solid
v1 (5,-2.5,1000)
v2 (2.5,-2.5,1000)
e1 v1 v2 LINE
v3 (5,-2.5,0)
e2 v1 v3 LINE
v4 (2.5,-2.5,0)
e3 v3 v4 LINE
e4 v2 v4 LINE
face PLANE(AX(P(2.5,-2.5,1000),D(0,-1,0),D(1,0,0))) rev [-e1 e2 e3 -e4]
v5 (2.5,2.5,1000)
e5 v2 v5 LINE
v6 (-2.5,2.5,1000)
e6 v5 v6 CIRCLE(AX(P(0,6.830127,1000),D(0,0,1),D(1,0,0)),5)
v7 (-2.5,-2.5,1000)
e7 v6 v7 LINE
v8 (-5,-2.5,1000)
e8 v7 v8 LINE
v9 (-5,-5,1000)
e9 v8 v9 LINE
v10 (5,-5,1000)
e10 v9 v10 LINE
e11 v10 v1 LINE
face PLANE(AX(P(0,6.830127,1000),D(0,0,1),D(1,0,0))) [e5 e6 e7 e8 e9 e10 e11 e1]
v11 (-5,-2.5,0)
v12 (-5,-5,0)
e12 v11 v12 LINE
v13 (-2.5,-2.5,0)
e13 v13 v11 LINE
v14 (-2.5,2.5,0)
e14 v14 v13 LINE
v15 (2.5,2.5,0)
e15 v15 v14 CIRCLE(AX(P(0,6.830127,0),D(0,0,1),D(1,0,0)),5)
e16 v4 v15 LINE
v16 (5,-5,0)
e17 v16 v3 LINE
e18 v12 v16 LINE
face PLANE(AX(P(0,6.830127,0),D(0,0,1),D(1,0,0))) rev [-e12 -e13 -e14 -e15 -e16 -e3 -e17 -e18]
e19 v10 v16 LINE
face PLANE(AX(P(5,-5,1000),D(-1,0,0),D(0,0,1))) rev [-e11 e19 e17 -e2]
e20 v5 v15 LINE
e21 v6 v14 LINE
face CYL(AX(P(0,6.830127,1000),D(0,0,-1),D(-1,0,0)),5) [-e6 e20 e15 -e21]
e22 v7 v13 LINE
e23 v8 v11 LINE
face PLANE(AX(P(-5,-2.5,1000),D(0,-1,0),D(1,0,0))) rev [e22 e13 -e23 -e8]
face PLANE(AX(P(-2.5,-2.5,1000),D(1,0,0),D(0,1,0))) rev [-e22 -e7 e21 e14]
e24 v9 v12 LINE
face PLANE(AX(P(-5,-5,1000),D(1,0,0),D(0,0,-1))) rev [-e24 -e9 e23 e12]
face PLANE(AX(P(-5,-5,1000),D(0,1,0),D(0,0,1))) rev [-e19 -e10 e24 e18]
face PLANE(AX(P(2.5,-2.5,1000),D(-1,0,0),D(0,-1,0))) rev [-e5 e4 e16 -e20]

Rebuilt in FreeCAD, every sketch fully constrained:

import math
import FreeCAD as App
import Part
import Sketcher

doc = App.newDocument("Part")
body = doc.addObject("PartDesign::Body", "Body")

# Sketch on XY plane
sketch1 = body.newObject("Sketcher::SketchObject", "Sketch")
sketch1.AttachmentSupport = (doc.getObject("XY_Plane"), [""])
sketch1.MapMode = "FlatFace"
sketch1.addGeometry(Part.LineSegment(App.Vector(-5, -5, 0), App.Vector(5, -5, 0)), False)
sketch1.addGeometry(Part.LineSegment(App.Vector(5, -5, 0), App.Vector(5, -2.5, 0)), False)
sketch1.addGeometry(Part.LineSegment(App.Vector(5, -2.5, 0), App.Vector(2.5, -2.5, 0)), False)
sketch1.addGeometry(Part.LineSegment(App.Vector(2.5, -2.5, 0), App.Vector(2.5, 2.5, 0)), False)
sketch1.addGeometry(Part.ArcOfCircle(Part.Circle(App.Vector(0, 6.8, 0), App.Vector(0, 0, 1), 5), math.radians(-60), math.radians(240)), False)
sketch1.addGeometry(Part.LineSegment(App.Vector(-2.5, 2.5, 0), App.Vector(-2.5, -2.5, 0)), False)
sketch1.addGeometry(Part.LineSegment(App.Vector(-2.5, -2.5, 0), App.Vector(-5, -2.5, 0)), False)
sketch1.addGeometry(Part.LineSegment(App.Vector(-5, -2.5, 0), App.Vector(-5, -5, 0)), False)
sketch1.addConstraint(Sketcher.Constraint("Coincident", 0, 2, 1, 1))
sketch1.addConstraint(Sketcher.Constraint("Coincident", 1, 2, 2, 1))
sketch1.addConstraint(Sketcher.Constraint("Coincident", 2, 2, 3, 1))
sketch1.addConstraint(Sketcher.Constraint("Coincident", 3, 2, 4, 1))
sketch1.addConstraint(Sketcher.Constraint("Coincident", 4, 2, 5, 1))
sketch1.addConstraint(Sketcher.Constraint("Coincident", 5, 2, 6, 1))
sketch1.addConstraint(Sketcher.Constraint("Coincident", 6, 2, 7, 1))
sketch1.addConstraint(Sketcher.Constraint("Coincident", 7, 2, 0, 1))
sketch1.addConstraint(Sketcher.Constraint("Horizontal", 0))
sketch1.addConstraint(Sketcher.Constraint("Vertical", 1))
sketch1.addConstraint(Sketcher.Constraint("Horizontal", 2))
sketch1.addConstraint(Sketcher.Constraint("Vertical", 3))
sketch1.addConstraint(Sketcher.Constraint("Vertical", 5))
sketch1.addConstraint(Sketcher.Constraint("Horizontal", 6))
sketch1.addConstraint(Sketcher.Constraint("Vertical", 7))
sketch1.addConstraint(Sketcher.Constraint("Symmetric", 2, 2, 4, 2, -1, 1))
sketch1.addConstraint(Sketcher.Constraint("Symmetric", 1, 2, 6, 2, -2))
sketch1.addConstraint(Sketcher.Constraint("PointOnObject", 4, 3, -2))
sketch1.addConstraint(Sketcher.Constraint("Equal", 6, 1))
sketch1.addConstraint(Sketcher.Constraint("Radius", 4, 5.0))
sketch1.addConstraint(Sketcher.Constraint("DistanceX", 0, 1, 0, 2, 10.0))
sketch1.addConstraint(Sketcher.Constraint("DistanceY", 3, 1, 3, 2, 5.0))
sketch1.addConstraint(Sketcher.Constraint("DistanceX", 2, 2, 2, 1, 2.5))
pad1 = body.newObject("PartDesign::Pad", "Pad")
pad1.Profile = sketch1
pad1.Length = 1000

doc.recompute()
